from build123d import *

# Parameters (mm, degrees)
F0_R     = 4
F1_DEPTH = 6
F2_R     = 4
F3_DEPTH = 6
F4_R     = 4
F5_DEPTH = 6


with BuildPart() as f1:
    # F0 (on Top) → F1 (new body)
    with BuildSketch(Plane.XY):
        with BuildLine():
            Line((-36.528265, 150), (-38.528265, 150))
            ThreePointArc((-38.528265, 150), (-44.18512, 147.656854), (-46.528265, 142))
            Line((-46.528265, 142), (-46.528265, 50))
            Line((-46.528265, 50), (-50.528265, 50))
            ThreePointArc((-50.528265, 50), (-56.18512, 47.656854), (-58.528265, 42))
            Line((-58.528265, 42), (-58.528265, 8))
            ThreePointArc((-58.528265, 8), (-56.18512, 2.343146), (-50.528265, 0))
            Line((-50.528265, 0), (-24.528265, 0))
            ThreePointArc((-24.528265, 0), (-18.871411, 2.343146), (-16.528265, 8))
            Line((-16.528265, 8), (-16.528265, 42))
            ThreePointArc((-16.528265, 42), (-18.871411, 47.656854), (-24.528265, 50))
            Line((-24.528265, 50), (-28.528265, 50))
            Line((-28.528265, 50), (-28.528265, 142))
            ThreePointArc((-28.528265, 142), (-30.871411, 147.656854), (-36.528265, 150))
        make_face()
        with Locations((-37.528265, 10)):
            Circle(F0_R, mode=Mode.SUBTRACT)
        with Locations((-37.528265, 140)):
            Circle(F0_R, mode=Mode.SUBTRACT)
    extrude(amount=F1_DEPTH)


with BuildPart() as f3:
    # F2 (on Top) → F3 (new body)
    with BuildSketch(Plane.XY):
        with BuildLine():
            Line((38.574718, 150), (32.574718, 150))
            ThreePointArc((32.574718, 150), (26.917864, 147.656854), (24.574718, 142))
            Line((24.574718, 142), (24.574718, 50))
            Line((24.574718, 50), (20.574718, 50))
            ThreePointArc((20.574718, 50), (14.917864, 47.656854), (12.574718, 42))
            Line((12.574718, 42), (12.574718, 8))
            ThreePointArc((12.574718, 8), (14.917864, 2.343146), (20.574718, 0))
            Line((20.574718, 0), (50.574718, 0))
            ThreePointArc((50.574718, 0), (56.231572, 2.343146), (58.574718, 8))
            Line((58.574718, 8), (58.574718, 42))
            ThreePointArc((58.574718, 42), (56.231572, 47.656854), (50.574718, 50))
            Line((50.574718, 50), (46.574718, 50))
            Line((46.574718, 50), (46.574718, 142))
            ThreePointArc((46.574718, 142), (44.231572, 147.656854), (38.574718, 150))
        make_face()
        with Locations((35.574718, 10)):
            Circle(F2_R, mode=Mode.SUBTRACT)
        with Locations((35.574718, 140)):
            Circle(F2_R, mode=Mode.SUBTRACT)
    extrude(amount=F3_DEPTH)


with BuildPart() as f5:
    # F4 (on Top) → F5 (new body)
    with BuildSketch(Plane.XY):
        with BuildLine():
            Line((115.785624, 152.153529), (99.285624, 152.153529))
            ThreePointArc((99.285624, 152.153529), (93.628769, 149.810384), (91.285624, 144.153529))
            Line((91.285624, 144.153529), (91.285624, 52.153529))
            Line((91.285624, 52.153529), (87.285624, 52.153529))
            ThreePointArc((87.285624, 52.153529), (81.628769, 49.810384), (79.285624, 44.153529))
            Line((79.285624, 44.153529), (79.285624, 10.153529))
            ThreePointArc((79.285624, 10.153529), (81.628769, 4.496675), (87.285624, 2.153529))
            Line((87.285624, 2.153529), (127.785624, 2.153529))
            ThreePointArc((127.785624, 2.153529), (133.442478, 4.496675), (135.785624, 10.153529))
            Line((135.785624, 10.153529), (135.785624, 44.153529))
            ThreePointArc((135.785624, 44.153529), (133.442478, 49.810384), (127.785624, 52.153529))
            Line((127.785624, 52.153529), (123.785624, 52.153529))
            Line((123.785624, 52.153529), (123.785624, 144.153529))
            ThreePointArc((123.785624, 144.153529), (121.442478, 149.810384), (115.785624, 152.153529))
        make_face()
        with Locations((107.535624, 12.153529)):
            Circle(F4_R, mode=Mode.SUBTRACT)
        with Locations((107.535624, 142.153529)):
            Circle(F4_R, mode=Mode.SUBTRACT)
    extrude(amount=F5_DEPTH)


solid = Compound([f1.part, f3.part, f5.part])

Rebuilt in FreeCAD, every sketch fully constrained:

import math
import FreeCAD as App
import Part
import Sketcher
from FreeCAD import Vector
Q = App.Units.Quantity

doc = App.newDocument("Part")
body = doc.addObject("PartDesign::Body", "Body")

# Sketch on XY plane
sketch1 = doc.addObject("Sketcher::SketchObject", "Sketch")
body.addObject(sketch1)
sketch1.AttachmentSupport = (doc.XY_Plane, [""])
sketch1.MapMode = "FlatFace"
sketch1.addGeometry([
    Part.LineSegment(Vector(-36.528265, 150, 0), Vector(-38.528265, 150, 0)),  # 0
    Part.ArcOfCircle(Part.Circle(Vector(-38.528266, 142.000001, 0), Vector(0, 0, 1), 7.999999), math.radians(89.999994), math.radians(180.000006)),  # 1
    Part.LineSegment(Vector(-46.528265, 142, 0), Vector(-46.528265, 50, 0)),  # 2
    Part.LineSegment(Vector(-46.528265, 50, 0), Vector(-50.528265, 50, 0)),  # 3
    Part.ArcOfCircle(Part.Circle(Vector(-50.528266, 42.000001, 0), Vector(0, 0, 1), 7.999999), math.radians(89.999994), math.radians(180.000006)),  # 4
    Part.LineSegment(Vector(-58.528265, 42, 0), Vector(-58.528265, 8, 0)),  # 5
    Part.ArcOfCircle(Part.Circle(Vector(-50.528266, 7.999999, 0), Vector(0, 0, 1), 7.999999), math.radians(179.999994), math.radians(270.000006)),  # 6
    Part.LineSegment(Vector(-50.528265, 0, 0), Vector(-24.528265, 0, 0)),  # 7
    Part.ArcOfCircle(Part.Circle(Vector(-24.528266, 8.000001, 0), Vector(0, 0, 1), 8.000001), math.radians(-89.999994), math.radians(-0.000006)),  # 8
    Part.LineSegment(Vector(-16.528265, 8, 0), Vector(-16.528265, 42, 0)),  # 9
    Part.ArcOfCircle(Part.Circle(Vector(-24.528266, 41.999999, 0), Vector(0, 0, 1), 8.000001), math.radians(0.000006), math.radians(89.999994)),  # 10
    Part.LineSegment(Vector(-24.528265, 50, 0), Vector(-28.528265, 50, 0)),  # 11
    Part.LineSegment(Vector(-28.528265, 50, 0), Vector(-28.528265, 142, 0)),  # 12
    Part.ArcOfCircle(Part.Circle(Vector(-36.528266, 141.999999, 0), Vector(0, 0, 1), 8.000001), math.radians(0.000006), math.radians(89.999994)),  # 13
    Part.Circle(Vector(-37.528265, 10, 0), Vector(0, 0, 1), 4),  # 14
    Part.Circle(Vector(-37.528265, 140, 0), Vector(0, 0, 1), 4),  # 15
], False)
sketch1.addConstraint([
    Sketcher.Constraint("Tangent", 0, 2, 1, 1),
    Sketcher.Constraint("Tangent", 1, 2, 2, 1),
    Sketcher.Constraint("Coincident", 2, 2, 3, 1),
    Sketcher.Constraint("Tangent", 3, 2, 4, 1),
    Sketcher.Constraint("Tangent", 4, 2, 5, 1),
    Sketcher.Constraint("Tangent", 5, 2, 6, 1),
    Sketcher.Constraint("Tangent", 6, 2, 7, 1),
    Sketcher.Constraint("Tangent", 7, 2, 8, 1),
    Sketcher.Constraint("Tangent", 8, 2, 9, 1),
    Sketcher.Constraint("Tangent", 9, 2, 10, 1),
    Sketcher.Constraint("Tangent", 10, 2, 11, 1),
    Sketcher.Constraint("Coincident", 11, 2, 12, 1),
    Sketcher.Constraint("Tangent", 12, 2, 13, 1),
    Sketcher.Constraint("Tangent", 13, 2, 0, 1),
    Sketcher.Constraint("Horizontal", 0),
    Sketcher.Constraint("Vertical", 2),
    Sketcher.Constraint("Horizontal", 3),
    Sketcher.Constraint("Vertical", 5),
    Sketcher.Constraint("Horizontal", 7),
    Sketcher.Constraint("Vertical", 9),
    Sketcher.Constraint("Horizontal", 11),
    Sketcher.Constraint("Vertical", 12),
    Sketcher.Constraint("Equal", 1, 4),
    Sketcher.Constraint("Equal", 4, 6),
    Sketcher.Constraint("Equal", 6, 8),
    Sketcher.Constraint("Equal", 8, 10),
    Sketcher.Constraint("Equal", 10, 13),
    Sketcher.Constraint("Equal", 14, 15),
    Sketcher.Constraint("PointOnObject", 6, 2, -1),
    Sketcher.Constraint("Horizontal", 4, 3, 10, 3),
    Sketcher.Constraint("Vertical", 14, 3, 15, 3),
    Sketcher.Constraint("Equal", 3, 11),
    Sketcher.Constraint("Diameter", 14, Q("8 mm")),
    Sketcher.Constraint("Radius", 1, Q("7.999999 mm")),
    Sketcher.Constraint("DistanceX", 0, 2, 0, 1, Q("2 mm")),
    Sketcher.Constraint("DistanceX", 3, 2, 3, 1, Q("4 mm")),
    Sketcher.Constraint("DistanceY", 2, 2, 2, 1, Q("92 mm")),
    Sketcher.Constraint("DistanceY", 5, 2, 5, 1, Q("34 mm")),
    Sketcher.Constraint("DistanceY", -1, 1, 14, 3, Q("10 mm")),
    Sketcher.Constraint("DistanceY", -1, 1, 15, 3, Q("140 mm")),
    Sketcher.Constraint("DistanceX", 14, 3, 8, 3, Q("12.999999 mm")),
    Sketcher.Constraint("DistanceX", 1, 3, -1, 1, Q("38.528266 mm")),
])
pad1 = doc.addObject("PartDesign::Pad", "Pad")
body.addObject(pad1)
pad1.Profile = sketch1
pad1.Length = 6
body2 = doc.addObject("PartDesign::Body", "Body001")

# Sketch on XY plane
sketch2 = doc.addObject("Sketcher::SketchObject", "Sketch001")
body2.addObject(sketch2)
sketch2.AttachmentSupport = (doc.getObject("XY_Plane001"), [""])
sketch2.MapMode = "FlatFace"
sketch2.addGeometry([
    Part.LineSegment(Vector(38.574718, 150, 0), Vector(32.574718, 150, 0)),  # 0
    Part.ArcOfCircle(Part.Circle(Vector(32.574719, 141.999999, 0), Vector(0, 0, 1), 8.000001), math.radians(90.000006), math.radians(179.999994)),  # 1
    Part.LineSegment(Vector(24.574718, 142, 0), Vector(24.574718, 50, 0)),  # 2
    Part.LineSegment(Vector(24.574718, 50, 0), Vector(20.574718, 50, 0)),  # 3
    Part.ArcOfCircle(Part.Circle(Vector(20.574719, 41.999999, 0), Vector(0, 0, 1), 8.000001), math.radians(90.000006), math.radians(179.999994)),  # 4
    Part.LineSegment(Vector(12.574718, 42, 0), Vector(12.574718, 8, 0)),  # 5
    Part.ArcOfCircle(Part.Circle(Vector(20.574719, 8.000001, 0), Vector(0, 0, 1), 8.000001), math.radians(-179.999994), math.radians(-90.000006)),  # 6
    Part.LineSegment(Vector(20.574718, 0, 0), Vector(50.574718, 0, 0)),  # 7
    Part.ArcOfCircle(Part.Circle(Vector(50.574717, 8.000001, 0), Vector(0, 0, 1), 8.000001), math.radians(-89.999994), math.radians(-0.000006)),  # 8
    Part.LineSegment(Vector(58.574718, 8, 0), Vector(58.574718, 42, 0)),  # 9
    Part.ArcOfCircle(Part.Circle(Vector(50.574717, 41.999999, 0), Vector(0, 0, 1), 8.000001), math.radians(0.000006), math.radians(89.999994)),  # 10
    Part.LineSegment(Vector(50.574718, 50, 0), Vector(46.574718, 50, 0)),  # 11
    Part.LineSegment(Vector(46.574718, 50, 0), Vector(46.574718, 142, 0)),  # 12
    Part.ArcOfCircle(Part.Circle(Vector(38.574717, 141.999999, 0), Vector(0, 0, 1), 8.000001), math.radians(0.000006), math.radians(89.999994)),  # 13
    Part.Circle(Vector(35.574718, 10, 0), Vector(0, 0, 1), 4),  # 14
    Part.Circle(Vector(35.574718, 140, 0), Vector(0, 0, 1), 4),  # 15
], False)
sketch2.addConstraint([
    Sketcher.Constraint("Tangent", 0, 2, 1, 1),
    Sketcher.Constraint("Tangent", 1, 2, 2, 1),
    Sketcher.Constraint("Coincident", 2, 2, 3, 1),
    Sketcher.Constraint("Tangent", 3, 2, 4, 1),
    Sketcher.Constraint("Tangent", 4, 2, 5, 1),
    Sketcher.Constraint("Tangent", 5, 2, 6, 1),
    Sketcher.Constraint("Tangent", 6, 2, 7, 1),
    Sketcher.Constraint("Tangent", 7, 2, 8, 1),
    Sketcher.Constraint("Tangent", 8, 2, 9, 1),
    Sketcher.Constraint("Tangent", 9, 2, 10, 1),
    Sketcher.Constraint("Tangent", 10, 2, 11, 1),
    Sketcher.Constraint("Coincident", 11, 2, 12, 1),
    Sketcher.Constraint("Tangent", 12, 2, 13, 1),
    Sketcher.Constraint("Tangent", 13, 2, 0, 1),
    Sketcher.Constraint("Horizontal", 0),
    Sketcher.Constraint("Vertical", 2),
    Sketcher.Constraint("Horizontal", 3),
    Sketcher.Constraint("Vertical", 5),
    Sketcher.Constraint("Horizontal", 7),
    Sketcher.Constraint("Vertical", 9),
    Sketcher.Constraint("Horizontal", 11),
    Sketcher.Constraint("Vertical", 12),
    Sketcher.Constraint("Equal", 1, 4),
    Sketcher.Constraint("Equal", 4, 6),
    Sketcher.Constraint("Equal", 6, 8),
    Sketcher.Constraint("Equal", 8, 10),
    Sketcher.Constraint("Equal", 10, 13),
    Sketcher.Constraint("Equal", 14, 15),
    Sketcher.Constraint("PointOnObject", 6, 2, -1),
    Sketcher.Constraint("Horizontal", 4, 3, 10, 3),
    Sketcher.Constraint("Vertical", 14, 3, 15, 3),
    Sketcher.Constraint("Equal", 3, 11),
    Sketcher.Constraint("Diameter", 14, Q("8 mm")),
    Sketcher.Constraint("Radius", 1, Q("8.000001 mm")),
    Sketcher.Constraint("DistanceX", 0, 2, 0, 1, Q("6 mm")),
    Sketcher.Constraint("DistanceX", 3, 2, 3, 1, Q("4 mm")),
    Sketcher.Constraint("DistanceY", 2, 2, 2, 1, Q("92 mm")),
    Sketcher.Constraint("DistanceY", 5, 2, 5, 1, Q("34 mm")),
    Sketcher.Constraint("DistanceY", -1, 1, 14, 3, Q("10 mm")),
    Sketcher.Constraint("DistanceY", -1, 1, 15, 3, Q("140 mm")),
    Sketcher.Constraint("DistanceX", 6, 3, 14, 3, Q("14.999999 mm")),
    Sketcher.Constraint("DistanceX", -1, 1, 1, 3, Q("32.574719 mm")),
])
pad2 = doc.addObject("PartDesign::Pad", "Pad001")
body2.addObject(pad2)
pad2.Profile = sketch2
pad2.Length = 6
body3 = doc.addObject("PartDesign::Body", "Body002")

# Sketch on XY plane
sketch3 = doc.addObject("Sketcher::SketchObject", "Sketch002")
body3.addObject(sketch3)
sketch3.AttachmentSupport = (doc.getObject("XY_Plane002"), [""])
sketch3.MapMode = "FlatFace"
sketch3.addGeometry([
    Part.LineSegment(Vector(115.785624, 152.153529, 0), Vector(99.285624, 152.153529, 0)),  # 0
    Part.ArcOfCircle(Part.Circle(Vector(99.285621, 144.153532, 0), Vector(0, 0, 1), 7.999997), math.radians(89.999982), math.radians(180.000018)),  # 1
    Part.LineSegment(Vector(91.285624, 144.153529, 0), Vector(91.285624, 52.153529, 0)),  # 2
    Part.LineSegment(Vector(91.285624, 52.153529, 0), Vector(87.285624, 52.153529, 0)),  # 3
    Part.ArcOfCircle(Part.Circle(Vector(87.285621, 44.153532, 0), Vector(0, 0, 1), 7.999997), math.radians(89.999982), math.radians(180.000018)),  # 4
    Part.LineSegment(Vector(79.285624, 44.153529, 0), Vector(79.285624, 10.153529, 0)),  # 5
    Part.ArcOfCircle(Part.Circle(Vector(87.285623, 10.153528, 0), Vector(0, 0, 1), 7.999999), math.radians(179.999994), math.radians(270.000006)),  # 6
    Part.LineSegment(Vector(87.285624, 2.153529, 0), Vector(127.785624, 2.153529, 0)),  # 7
    Part.ArcOfCircle(Part.Circle(Vector(127.785623, 10.15353, 0), Vector(0, 0, 1), 8.000001), math.radians(-89.999994), math.radians(-0.000006)),  # 8
    Part.LineSegment(Vector(135.785624, 10.153529, 0), Vector(135.785624, 44.153529, 0)),  # 9
    Part.ArcOfCircle(Part.Circle(Vector(127.785625, 44.15353, 0), Vector(0, 0, 1), 7.999999), math.radians(-0.000006), math.radians(90.000006)),  # 10
    Part.LineSegment(Vector(127.785624, 52.153529, 0), Vector(123.785624, 52.153529, 0)),  # 11
    Part.LineSegment(Vector(123.785624, 52.153529, 0), Vector(123.785624, 144.153529, 0)),  # 12
    Part.ArcOfCircle(Part.Circle(Vector(115.785625, 144.15353, 0), Vector(0, 0, 1), 7.999999), math.radians(-0.000006), math.radians(90.000006)),  # 13
    Part.Circle(Vector(107.535624, 12.153529, 0), Vector(0, 0, 1), 4),  # 14
    Part.Circle(Vector(107.535624, 142.153529, 0), Vector(0, 0, 1), 4),  # 15
], False)
sketch3.addConstraint([
    Sketcher.Constraint("Tangent", 0, 2, 1, 1),
    Sketcher.Constraint("Tangent", 1, 2, 2, 1),
    Sketcher.Constraint("Coincident", 2, 2, 3, 1),
    Sketcher.Constraint("Tangent", 3, 2, 4, 1),
    Sketcher.Constraint("Tangent", 4, 2, 5, 1),
    Sketcher.Constraint("Tangent", 5, 2, 6, 1),
    Sketcher.Constraint("Tangent", 6, 2, 7, 1),
    Sketcher.Constraint("Tangent", 7, 2, 8, 1),
    Sketcher.Constraint("Tangent", 8, 2, 9, 1),
    Sketcher.Constraint("Tangent", 9, 2, 10, 1),
    Sketcher.Constraint("Tangent", 10, 2, 11, 1),
    Sketcher.Constraint("Coincident", 11, 2, 12, 1),
    Sketcher.Constraint("Tangent", 12, 2, 13, 1),
    Sketcher.Constraint("Tangent", 13, 2, 0, 1),
    Sketcher.Constraint("Horizontal", 0),
    Sketcher.Constraint("Vertical", 2),
    Sketcher.Constraint("Horizontal", 3),
    Sketcher.Constraint("Vertical", 5),
    Sketcher.Constraint("Horizontal", 7),
    Sketcher.Constraint("Vertical", 9),
    Sketcher.Constraint("Horizontal", 11),
    Sketcher.Constraint("Vertical", 12),
    Sketcher.Constraint("Equal", 1, 4),
    Sketcher.Constraint("Equal", 4, 6),
    Sketcher.Constraint("Equal", 6, 8),
    Sketcher.Constraint("Equal", 8, 10),
    Sketcher.Constraint("Equal", 10, 13),
    Sketcher.Constraint("Equal", 14, 15),
    Sketcher.Constraint("Horizontal", 4, 3, 10, 3),
    Sketcher.Constraint("Vertical", 14, 3, 15, 3),
    Sketcher.Constraint("Equal", 3, 11),
    Sketcher.Constraint("Diameter", 14, Q("8 mm")),
    Sketcher.Constraint("Radius", 6, Q("7.999999 mm")),
    Sketcher.Constraint("DistanceX", 3, 2, 3, 1, Q("4 mm")),
    Sketcher.Constraint("DistanceY", 2, 2, 2, 1, Q("92 mm")),
    Sketcher.Constraint("DistanceY", 5, 2, 5, 1, Q("34 mm")),
    Sketcher.Constraint("DistanceX", 0, 2, 0, 1, Q("16.5 mm")),
    Sketcher.Constraint("DistanceY", 8, 3, 14, 3, Q("1.999999 mm")),
    Sketcher.Constraint("DistanceY", 15, 3, 13, 3, Q("2.000001 mm")),
    Sketcher.Constraint("DistanceX", 14, 3, 8, 3, Q("20.249999 mm")),
    Sketcher.Constraint("DistanceX", -1, 1, 1, 3, Q("99.285621 mm")),
    Sketcher.Constraint("DistanceY", -1, 1, 1, 3, Q("144.153532 mm")),
])
pad3 = doc.addObject("PartDesign::Pad", "Pad002")
body3.addObject(pad3)
pad3.Profile = sketch3
pad3.Length = 6

doc.recompute()
